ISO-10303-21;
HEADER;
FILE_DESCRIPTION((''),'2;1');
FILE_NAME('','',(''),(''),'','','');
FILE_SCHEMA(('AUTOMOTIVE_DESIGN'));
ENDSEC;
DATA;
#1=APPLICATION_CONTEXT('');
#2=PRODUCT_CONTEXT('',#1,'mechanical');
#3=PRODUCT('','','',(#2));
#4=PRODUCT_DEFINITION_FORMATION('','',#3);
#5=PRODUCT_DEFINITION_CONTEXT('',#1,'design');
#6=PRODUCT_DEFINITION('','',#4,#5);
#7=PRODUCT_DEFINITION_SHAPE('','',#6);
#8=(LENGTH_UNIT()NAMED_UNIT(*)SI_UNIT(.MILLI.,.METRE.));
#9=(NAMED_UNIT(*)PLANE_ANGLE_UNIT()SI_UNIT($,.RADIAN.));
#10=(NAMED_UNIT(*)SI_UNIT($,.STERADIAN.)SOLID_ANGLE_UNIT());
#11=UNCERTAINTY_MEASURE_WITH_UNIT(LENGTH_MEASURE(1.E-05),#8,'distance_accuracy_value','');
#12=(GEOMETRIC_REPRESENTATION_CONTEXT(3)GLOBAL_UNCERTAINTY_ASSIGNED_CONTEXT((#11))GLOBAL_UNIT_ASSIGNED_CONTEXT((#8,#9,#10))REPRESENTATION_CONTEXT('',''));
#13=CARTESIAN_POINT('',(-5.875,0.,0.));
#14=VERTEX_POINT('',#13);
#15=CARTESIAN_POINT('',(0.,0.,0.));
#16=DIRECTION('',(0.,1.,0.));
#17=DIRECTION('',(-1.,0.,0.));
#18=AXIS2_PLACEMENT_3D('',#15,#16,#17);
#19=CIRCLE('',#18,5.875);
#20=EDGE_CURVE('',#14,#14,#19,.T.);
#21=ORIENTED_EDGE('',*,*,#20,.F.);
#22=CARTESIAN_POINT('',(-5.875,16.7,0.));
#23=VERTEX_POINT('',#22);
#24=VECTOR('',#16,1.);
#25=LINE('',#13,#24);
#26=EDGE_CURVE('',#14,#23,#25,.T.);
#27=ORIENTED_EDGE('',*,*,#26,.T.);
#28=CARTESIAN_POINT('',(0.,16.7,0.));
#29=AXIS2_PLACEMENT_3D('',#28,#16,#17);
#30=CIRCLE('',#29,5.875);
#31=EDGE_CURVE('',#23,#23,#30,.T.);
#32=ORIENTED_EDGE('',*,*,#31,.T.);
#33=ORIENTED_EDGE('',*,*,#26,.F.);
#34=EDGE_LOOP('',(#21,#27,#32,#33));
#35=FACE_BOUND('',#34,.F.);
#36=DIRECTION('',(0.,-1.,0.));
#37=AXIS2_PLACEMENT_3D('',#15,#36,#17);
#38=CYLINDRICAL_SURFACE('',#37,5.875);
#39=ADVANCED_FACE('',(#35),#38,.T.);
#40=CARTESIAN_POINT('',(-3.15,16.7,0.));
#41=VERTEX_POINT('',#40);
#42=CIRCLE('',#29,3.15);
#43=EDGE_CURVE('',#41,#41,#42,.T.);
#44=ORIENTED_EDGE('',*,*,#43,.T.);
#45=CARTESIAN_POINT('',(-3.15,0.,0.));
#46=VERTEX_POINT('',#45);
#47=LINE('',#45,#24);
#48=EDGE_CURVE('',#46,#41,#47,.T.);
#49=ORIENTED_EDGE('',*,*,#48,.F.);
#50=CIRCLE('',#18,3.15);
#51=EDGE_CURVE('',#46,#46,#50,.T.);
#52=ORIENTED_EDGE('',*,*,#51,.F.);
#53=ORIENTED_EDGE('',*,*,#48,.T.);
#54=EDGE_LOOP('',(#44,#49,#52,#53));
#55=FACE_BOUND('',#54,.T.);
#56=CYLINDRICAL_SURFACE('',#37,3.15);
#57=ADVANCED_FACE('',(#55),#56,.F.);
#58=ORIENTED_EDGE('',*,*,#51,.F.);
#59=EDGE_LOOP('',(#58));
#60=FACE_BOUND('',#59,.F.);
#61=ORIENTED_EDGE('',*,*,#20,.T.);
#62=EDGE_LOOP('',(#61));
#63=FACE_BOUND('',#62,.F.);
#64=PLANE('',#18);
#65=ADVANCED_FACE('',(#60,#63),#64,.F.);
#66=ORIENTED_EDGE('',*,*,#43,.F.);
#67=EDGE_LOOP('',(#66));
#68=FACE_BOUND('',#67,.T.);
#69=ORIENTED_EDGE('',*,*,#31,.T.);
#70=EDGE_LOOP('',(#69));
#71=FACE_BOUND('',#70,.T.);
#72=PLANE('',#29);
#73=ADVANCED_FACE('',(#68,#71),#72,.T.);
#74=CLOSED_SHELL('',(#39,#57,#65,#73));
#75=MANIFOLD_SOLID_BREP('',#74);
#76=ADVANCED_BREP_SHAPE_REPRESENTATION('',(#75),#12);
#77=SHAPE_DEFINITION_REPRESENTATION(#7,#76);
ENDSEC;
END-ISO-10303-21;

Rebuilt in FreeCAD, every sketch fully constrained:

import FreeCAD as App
import Part
import Sketcher
Q = App.Units.Quantity

doc = App.newDocument("Part")
body = doc.addObject("PartDesign::Body", "Body")

# Sketch on XZ plane
sketch1 = body.newObject("Sketcher::SketchObject", "Sketch")
sketch1.AttachmentSupport = (doc.getObject("XZ_Plane"), [""])
sketch1.MapMode = "FlatFace"
sketch1.addGeometry(Part.Circle(App.Vector(0, 0, 0), App.Vector(0, 0, 1), 5.9), False)
sketch1.addGeometry(Part.Circle(App.Vector(0, 0, 0), App.Vector(0, 0, 1), 3.1), False)
sketch1.addConstraint(Sketcher.Constraint("Coincident", 0, 3, -1, 1))
sketch1.addConstraint(Sketcher.Constraint("Coincident", 1, 3, -1, 1))
sketch1.addConstraint(Sketcher.Constraint("Diameter", 1, Q("6.3 mm")))
sketch1.addConstraint(Sketcher.Constraint("Diameter", 0, Q("11.75 mm")))
pad1 = body.newObject("PartDesign::Pad", "Pad")
pad1.Profile = sketch1
pad1.Length = 16.7
pad1.Reversed = True

doc.recompute()
